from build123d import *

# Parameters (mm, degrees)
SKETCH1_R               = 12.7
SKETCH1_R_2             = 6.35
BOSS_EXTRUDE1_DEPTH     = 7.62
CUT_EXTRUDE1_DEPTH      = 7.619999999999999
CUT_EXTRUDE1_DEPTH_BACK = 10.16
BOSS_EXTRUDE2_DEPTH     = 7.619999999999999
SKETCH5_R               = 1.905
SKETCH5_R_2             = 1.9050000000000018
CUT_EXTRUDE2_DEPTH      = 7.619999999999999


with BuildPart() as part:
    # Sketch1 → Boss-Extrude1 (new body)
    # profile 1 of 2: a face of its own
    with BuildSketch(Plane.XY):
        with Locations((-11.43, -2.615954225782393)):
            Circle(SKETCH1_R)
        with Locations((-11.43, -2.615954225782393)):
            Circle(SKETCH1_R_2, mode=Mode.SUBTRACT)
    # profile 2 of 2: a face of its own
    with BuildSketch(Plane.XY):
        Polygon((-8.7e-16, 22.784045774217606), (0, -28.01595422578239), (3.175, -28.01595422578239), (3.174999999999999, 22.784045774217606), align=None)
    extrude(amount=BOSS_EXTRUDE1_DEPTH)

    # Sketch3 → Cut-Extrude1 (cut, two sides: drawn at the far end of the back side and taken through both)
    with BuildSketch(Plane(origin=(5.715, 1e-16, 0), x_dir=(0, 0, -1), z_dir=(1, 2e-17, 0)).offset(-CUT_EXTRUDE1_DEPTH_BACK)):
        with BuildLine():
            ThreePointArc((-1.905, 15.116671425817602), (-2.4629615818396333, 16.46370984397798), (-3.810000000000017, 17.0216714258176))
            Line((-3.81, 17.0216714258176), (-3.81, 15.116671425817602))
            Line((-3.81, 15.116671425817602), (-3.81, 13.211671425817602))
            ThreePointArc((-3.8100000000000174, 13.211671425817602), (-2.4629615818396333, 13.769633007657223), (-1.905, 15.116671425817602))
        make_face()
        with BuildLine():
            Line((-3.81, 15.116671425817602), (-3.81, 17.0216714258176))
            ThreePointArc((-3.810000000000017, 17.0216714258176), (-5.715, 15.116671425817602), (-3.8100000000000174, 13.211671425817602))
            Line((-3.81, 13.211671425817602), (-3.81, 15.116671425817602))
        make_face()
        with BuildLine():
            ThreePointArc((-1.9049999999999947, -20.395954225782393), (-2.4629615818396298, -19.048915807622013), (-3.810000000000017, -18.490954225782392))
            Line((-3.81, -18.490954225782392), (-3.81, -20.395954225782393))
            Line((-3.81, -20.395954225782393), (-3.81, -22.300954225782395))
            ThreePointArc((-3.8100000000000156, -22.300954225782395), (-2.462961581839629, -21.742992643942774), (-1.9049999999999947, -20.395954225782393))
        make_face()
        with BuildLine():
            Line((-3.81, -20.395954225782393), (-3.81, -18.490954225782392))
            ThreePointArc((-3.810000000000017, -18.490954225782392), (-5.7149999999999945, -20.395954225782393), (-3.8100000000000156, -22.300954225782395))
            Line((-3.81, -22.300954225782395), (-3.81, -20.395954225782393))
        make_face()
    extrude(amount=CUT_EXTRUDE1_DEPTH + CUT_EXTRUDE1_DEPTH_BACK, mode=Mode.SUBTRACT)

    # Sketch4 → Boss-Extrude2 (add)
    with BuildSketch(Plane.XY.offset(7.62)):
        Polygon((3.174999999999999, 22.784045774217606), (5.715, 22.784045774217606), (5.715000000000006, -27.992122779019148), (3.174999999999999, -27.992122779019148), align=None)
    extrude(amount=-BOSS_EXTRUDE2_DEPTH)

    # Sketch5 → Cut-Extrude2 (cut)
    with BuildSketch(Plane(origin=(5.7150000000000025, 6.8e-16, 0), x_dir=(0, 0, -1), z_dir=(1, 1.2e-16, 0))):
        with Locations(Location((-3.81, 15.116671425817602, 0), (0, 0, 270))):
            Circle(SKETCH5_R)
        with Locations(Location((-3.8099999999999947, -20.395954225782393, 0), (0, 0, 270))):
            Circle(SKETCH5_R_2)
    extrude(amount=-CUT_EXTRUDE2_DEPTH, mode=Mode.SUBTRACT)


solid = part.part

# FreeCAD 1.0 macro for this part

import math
import FreeCAD as App
import Part
import Sketcher

V = App.Vector
Q = App.Units.Quantity


def add_polygon(sketch, points):
    """Adds a closed chain of lines whose ends are joined by coincident constraints."""
    first, n = sketch.GeometryCount, len(points)
    for a, b in zip(points, points[1:] + points[:1]):
        sketch.addGeometry(Part.LineSegment(App.Vector(*a, 0), App.Vector(*b, 0)), False)
    for i in range(n):
        sketch.addConstraint(Sketcher.Constraint("Coincident", first + i, 2, first + (i + 1) % n, 1))

doc = App.newDocument("Part")
body = doc.addObject("PartDesign::Body", "Body")

# Sketch on XY plane
sketch1 = body.newObject("Sketcher::SketchObject", "Sketch")
sketch1.AttachmentSupport = (doc.getObject("XY_Plane"), [""])
sketch1.MapMode = "FlatFace"
sketch1.addGeometry([
    Part.LineSegment(V(3.2, 22.8, 0), V(0, 22.8, 0)),  # 0
    Part.LineSegment(V(0, 22.8, 0), V(0, 2.9, 0)),  # 1
    Part.ArcOfCircle(Part.Circle(V(-11.4, -2.6, 0), V(0, 0, 1), 12.7), math.radians(26), math.radians(334)),  # 2
    Part.LineSegment(V(0, -8.2, 0), V(0, -28, 0)),  # 3
    Part.LineSegment(V(0, -28, 0), V(3.2, -28, 0)),  # 4
    Part.LineSegment(V(3.2, -28, 0), V(3.2, 22.8, 0)),  # 5
    Part.Circle(V(-11.4, -2.6, 0), V(0, 0, 1), 6.3),  # 6
], False)
sketch1.addConstraint([
    Sketcher.Constraint("Coincident", 0, 2, 1, 1),
    Sketcher.Constraint("Coincident", 1, 2, 2, 1),
    Sketcher.Constraint("Coincident", 2, 2, 3, 1),
    Sketcher.Constraint("Coincident", 3, 2, 4, 1),
    Sketcher.Constraint("Coincident", 4, 2, 5, 1),
    Sketcher.Constraint("Coincident", 5, 2, 0, 1),
    Sketcher.Constraint("Horizontal", 0),
    Sketcher.Constraint("Vertical", 1),
    Sketcher.Constraint("Vertical", 3),
    Sketcher.Constraint("Horizontal", 4),
    Sketcher.Constraint("Vertical", 5),
    Sketcher.Constraint("Coincident", 6, 3, 2, 3),
    Sketcher.Constraint("PointOnObject", 0, 2, -2),
    Sketcher.Constraint("PointOnObject", 2, 2, -2),
    Sketcher.Constraint("Equal", 1, 3),
    Sketcher.Constraint("Diameter", 6, Q("0.5 in")),
    Sketcher.Constraint("Radius", 2, Q("0.5 in")),
    Sketcher.Constraint("DistanceY", 5, 1, 5, 2, Q("2 in")),
    Sketcher.Constraint("DistanceX", 0, 2, 0, 1, Q("0.125 in")),
    Sketcher.Constraint("DistanceX", 2, 3, -1, 1, Q("0.45 in")),
    Sketcher.Constraint("DistanceY", 2, 3, -1, 1, 2.615954),
])
pad1 = body.newObject("PartDesign::Pad", "Pad")
pad1.Profile = sketch1
pad1.Length = Q("0.3 in")

# Sketch on YZ plane
sketch2 = body.newObject("Sketcher::SketchObject", "Sketch001")
sketch2.AttachmentSupport = (doc.getObject("YZ_Plane"), [""])
sketch2.MapMode = "FlatFace"
sketch2.AttachmentOffset = App.Placement(V(0, 0, 0.225 * 25.4), App.Rotation())
sketch2.addGeometry([
    Part.Circle(V(15.1, 3.8, 0), V(0, 0, 1), 1.9),
    Part.Circle(V(-20.4, 3.8, 0), V(0, 0, 1), 1.9),
], False)
sketch2.addConstraint([
    Sketcher.Constraint("Equal", 0, 1),
    Sketcher.Constraint("Horizontal", 0, 3, 1, 3),
    Sketcher.Constraint("Diameter", 0, Q("0.15 in")),
    Sketcher.Constraint("DistanceY", -1, 1, 0, 3, Q("0.15 in")),
    Sketcher.Constraint("DistanceX", -1, 1, 0, 3, 15.116671),
    Sketcher.Constraint("DistanceX", 1, 3, -1, 1, 20.395954),
])
pocket1 = body.newObject("PartDesign::Pocket", "Pocket")
pocket1.Profile = sketch2
pocket1.Type = "ThroughAll"
pocket1.Midplane = True

# Sketch on XY plane
sketch3 = body.newObject("Sketcher::SketchObject", "Sketch002")
sketch3.AttachmentSupport = (doc.getObject("XY_Plane"), [""])
sketch3.MapMode = "FlatFace"
sketch3.AttachmentOffset = App.Placement(V(0, 0, 0.3 * 25.4), App.Rotation())
add_polygon(sketch3, [(5.7, 22.8), (3.2, 22.8), (3.2, -28), (5.7, -28)])  # lines 0-3
sketch3.addConstraint([
    Sketcher.Constraint("Horizontal", 0),
    Sketcher.Constraint("Vertical", 1),
    Sketcher.Constraint("Horizontal", 2),
    Sketcher.Constraint("Vertical", 3),
    Sketcher.Constraint("DistanceX", 0, 2, 0, 1, Q("0.1 in")),
    Sketcher.Constraint("DistanceX", -1, 1, 0, 2, Q("0.125 in")),
    Sketcher.Constraint("DistanceY", 1, 2, 1, 1, 50.776169),
    Sketcher.Constraint("DistanceY", -1, 1, 0, 2, 22.784046),
])
pad2 = body.newObject("PartDesign::Pad", "Pad001")
pad2.Profile = sketch3
pad2.Length = Q("0.3 in")
pad2.Reversed = True

# Sketch on YZ plane
sketch4 = body.newObject("Sketcher::SketchObject", "Sketch003")
sketch4.AttachmentSupport = (doc.getObject("YZ_Plane"), [""])
sketch4.MapMode = "FlatFace"
sketch4.AttachmentOffset = App.Placement(V(0, 0, 0.225 * 25.4), App.Rotation())
sketch4.addGeometry([
    Part.Circle(V(15.1, 3.8, 0), V(0, 0, 1), 1.9),
    Part.Circle(V(-20.4, 3.8, 0), V(0, 0, 1), 1.9),
], False)
sketch4.addConstraint([
    Sketcher.Constraint("Equal", 0, 1),
    Sketcher.Constraint("Horizontal", 0, 3, 1, 3),
    Sketcher.Constraint("Diameter", 0, Q("0.15 in")),
    Sketcher.Constraint("DistanceY", -1, 1, 0, 3, Q("0.15 in")),
    Sketcher.Constraint("DistanceX", -1, 1, 0, 3, 15.116671),
    Sketcher.Constraint("DistanceX", 1, 3, -1, 1, 20.395954),
])
pocket2 = body.newObject("PartDesign::Pocket", "Pocket001")
pocket2.Profile = sketch4
pocket2.Length = Q("0.3 in")

doc.recompute()
